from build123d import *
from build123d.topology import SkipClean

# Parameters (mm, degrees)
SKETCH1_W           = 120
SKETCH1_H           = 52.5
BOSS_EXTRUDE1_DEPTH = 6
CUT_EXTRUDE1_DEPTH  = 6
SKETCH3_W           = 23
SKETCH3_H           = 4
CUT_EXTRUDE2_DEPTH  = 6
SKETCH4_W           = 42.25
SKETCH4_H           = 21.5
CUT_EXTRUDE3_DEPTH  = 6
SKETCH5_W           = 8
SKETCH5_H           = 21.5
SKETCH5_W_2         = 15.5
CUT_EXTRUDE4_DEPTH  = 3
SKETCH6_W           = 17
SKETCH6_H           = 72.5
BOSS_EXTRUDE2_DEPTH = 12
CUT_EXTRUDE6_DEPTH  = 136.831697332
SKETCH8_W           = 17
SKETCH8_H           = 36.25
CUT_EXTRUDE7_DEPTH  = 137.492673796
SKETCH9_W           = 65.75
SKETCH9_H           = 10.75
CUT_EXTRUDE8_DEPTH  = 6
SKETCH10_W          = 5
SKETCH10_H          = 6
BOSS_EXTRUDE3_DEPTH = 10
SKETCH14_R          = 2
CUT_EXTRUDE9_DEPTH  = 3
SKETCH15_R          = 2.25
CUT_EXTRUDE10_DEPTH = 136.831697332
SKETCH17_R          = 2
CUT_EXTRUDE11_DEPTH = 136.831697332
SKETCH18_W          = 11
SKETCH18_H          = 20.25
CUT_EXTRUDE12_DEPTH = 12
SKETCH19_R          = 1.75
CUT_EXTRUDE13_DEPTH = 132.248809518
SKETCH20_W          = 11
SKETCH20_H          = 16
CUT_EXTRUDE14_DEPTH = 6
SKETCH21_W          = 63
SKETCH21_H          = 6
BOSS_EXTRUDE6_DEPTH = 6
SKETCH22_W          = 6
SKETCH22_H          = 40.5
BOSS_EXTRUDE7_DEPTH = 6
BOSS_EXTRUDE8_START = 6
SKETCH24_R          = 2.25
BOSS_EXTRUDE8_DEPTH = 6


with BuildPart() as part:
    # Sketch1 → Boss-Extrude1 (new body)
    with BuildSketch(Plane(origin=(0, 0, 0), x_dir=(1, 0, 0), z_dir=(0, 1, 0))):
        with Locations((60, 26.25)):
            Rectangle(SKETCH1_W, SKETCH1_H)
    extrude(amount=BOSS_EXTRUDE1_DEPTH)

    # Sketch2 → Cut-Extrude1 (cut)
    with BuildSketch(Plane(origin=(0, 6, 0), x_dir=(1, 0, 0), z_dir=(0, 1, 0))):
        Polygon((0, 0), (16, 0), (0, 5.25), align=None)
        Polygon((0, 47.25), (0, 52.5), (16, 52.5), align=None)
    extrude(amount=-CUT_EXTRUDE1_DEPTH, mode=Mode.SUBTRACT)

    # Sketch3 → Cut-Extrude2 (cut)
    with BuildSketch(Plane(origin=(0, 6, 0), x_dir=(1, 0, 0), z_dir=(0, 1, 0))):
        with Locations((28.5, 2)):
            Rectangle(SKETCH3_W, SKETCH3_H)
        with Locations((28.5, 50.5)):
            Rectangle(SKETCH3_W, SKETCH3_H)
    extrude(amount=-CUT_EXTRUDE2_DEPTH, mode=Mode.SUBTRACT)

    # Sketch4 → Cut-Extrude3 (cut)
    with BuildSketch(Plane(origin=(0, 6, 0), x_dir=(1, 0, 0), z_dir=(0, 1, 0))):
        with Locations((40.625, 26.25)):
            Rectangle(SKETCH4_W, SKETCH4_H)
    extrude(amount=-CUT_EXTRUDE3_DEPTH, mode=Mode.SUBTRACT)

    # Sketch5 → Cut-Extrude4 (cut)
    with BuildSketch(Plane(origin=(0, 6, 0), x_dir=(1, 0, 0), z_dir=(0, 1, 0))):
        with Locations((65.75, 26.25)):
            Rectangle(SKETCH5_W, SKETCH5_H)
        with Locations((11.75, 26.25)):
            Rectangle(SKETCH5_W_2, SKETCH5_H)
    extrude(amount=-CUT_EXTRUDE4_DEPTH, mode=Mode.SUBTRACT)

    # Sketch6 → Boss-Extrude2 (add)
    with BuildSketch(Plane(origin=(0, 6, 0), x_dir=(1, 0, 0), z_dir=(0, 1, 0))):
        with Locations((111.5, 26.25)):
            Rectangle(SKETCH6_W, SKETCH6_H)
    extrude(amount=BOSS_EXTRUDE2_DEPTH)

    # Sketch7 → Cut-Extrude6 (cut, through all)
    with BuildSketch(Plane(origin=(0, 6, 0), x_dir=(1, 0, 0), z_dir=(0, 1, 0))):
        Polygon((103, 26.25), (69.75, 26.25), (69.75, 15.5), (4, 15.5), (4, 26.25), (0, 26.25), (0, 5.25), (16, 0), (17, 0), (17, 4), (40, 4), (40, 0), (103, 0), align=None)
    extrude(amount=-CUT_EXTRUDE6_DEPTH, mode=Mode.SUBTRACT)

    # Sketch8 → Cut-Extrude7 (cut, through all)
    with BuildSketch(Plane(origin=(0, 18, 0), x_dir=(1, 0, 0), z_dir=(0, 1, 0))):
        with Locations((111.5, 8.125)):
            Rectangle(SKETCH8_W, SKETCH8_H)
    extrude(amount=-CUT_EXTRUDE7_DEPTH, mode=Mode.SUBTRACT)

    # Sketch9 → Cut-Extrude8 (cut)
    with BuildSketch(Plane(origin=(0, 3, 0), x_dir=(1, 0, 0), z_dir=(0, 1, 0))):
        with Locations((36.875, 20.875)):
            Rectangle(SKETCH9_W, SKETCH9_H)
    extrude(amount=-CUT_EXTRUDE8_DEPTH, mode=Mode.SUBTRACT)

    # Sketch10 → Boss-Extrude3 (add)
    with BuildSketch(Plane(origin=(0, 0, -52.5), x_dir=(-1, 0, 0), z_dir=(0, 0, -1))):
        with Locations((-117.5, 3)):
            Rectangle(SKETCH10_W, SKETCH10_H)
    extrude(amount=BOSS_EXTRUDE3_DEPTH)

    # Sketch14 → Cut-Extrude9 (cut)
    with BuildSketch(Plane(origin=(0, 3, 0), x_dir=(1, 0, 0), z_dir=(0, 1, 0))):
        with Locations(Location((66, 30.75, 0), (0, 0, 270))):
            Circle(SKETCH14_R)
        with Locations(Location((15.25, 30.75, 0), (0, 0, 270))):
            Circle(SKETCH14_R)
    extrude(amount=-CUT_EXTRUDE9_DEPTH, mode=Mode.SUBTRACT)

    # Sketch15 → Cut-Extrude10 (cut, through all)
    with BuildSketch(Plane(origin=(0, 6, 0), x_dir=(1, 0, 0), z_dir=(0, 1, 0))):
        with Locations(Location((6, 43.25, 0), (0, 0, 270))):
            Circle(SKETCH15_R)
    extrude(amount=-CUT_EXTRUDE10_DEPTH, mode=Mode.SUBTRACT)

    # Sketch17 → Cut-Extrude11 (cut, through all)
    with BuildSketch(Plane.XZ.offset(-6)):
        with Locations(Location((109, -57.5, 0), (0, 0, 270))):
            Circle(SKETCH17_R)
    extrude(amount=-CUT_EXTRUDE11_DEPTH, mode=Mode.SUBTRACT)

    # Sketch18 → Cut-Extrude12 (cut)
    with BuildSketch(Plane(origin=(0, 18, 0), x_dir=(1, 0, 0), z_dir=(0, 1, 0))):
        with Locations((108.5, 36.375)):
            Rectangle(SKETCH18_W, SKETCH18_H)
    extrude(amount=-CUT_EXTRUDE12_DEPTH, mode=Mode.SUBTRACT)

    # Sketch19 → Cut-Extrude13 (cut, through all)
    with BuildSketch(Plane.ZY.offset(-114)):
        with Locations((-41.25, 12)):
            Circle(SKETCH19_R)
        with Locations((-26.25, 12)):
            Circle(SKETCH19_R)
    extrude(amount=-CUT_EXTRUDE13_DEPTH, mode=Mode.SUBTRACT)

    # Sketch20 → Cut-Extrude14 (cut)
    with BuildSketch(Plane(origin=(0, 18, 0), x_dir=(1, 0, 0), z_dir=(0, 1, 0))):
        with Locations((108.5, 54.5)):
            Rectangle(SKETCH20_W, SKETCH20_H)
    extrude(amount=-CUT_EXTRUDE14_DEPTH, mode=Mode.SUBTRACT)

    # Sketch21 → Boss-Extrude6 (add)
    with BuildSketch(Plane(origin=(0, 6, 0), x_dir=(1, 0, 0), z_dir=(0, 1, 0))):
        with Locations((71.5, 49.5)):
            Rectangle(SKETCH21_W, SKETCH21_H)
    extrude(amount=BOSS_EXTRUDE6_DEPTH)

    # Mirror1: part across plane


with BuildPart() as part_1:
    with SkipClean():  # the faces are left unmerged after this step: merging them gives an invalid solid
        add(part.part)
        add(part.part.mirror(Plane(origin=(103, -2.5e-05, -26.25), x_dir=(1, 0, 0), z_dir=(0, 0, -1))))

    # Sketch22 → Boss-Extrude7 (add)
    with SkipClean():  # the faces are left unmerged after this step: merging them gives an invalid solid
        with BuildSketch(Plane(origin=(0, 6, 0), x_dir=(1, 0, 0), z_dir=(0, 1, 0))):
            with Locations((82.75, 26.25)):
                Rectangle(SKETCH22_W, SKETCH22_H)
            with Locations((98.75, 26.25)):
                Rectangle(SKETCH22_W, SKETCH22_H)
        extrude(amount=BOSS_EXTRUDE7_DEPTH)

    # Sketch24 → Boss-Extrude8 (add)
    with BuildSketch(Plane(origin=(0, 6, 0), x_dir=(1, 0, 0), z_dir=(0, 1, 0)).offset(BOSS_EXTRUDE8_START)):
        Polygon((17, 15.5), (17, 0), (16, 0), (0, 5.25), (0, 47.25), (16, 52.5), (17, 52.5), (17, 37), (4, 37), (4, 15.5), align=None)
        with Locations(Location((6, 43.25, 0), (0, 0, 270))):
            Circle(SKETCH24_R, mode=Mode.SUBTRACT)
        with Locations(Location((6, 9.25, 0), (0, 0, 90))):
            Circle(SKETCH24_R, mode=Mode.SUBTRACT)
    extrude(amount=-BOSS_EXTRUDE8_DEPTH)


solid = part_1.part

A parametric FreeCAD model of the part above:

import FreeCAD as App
import Part
import Sketcher
from FreeCAD import Vector

doc = App.newDocument("Part")
body = doc.addObject("PartDesign::Body", "Body")

sketch1 = body.newObject("Sketcher::SketchObject", "Sketch")
sketch1.AttachmentSupport = (doc.getObject("XZ_Plane"), [""])
sketch1.MapMode = "FlatFace"
sketch1.addGeometry([
    Part.LineSegment(Vector(0, -52, 0), Vector(0, 0, 0)),
    Part.LineSegment(Vector(0, 0, 0), Vector(120, 0, 0)),
    Part.LineSegment(Vector(120, 0, 0), Vector(120, -52, 0)),
    Part.LineSegment(Vector(120, -52, 0), Vector(0, -52, 0)),
], False)
sketch1.addConstraint([
    Sketcher.Constraint("Coincident", 0, 2, 1, 1),
    Sketcher.Constraint("Coincident", 1, 2, 2, 1),
    Sketcher.Constraint("Coincident", 2, 2, 3, 1),
    Sketcher.Constraint("Coincident", 3, 2, 0, 1),
    Sketcher.Constraint("Vertical", 0),
    Sketcher.Constraint("Horizontal", 1),
    Sketcher.Constraint("Vertical", 2),
    Sketcher.Constraint("Horizontal", 3),
    Sketcher.Constraint("Coincident", 0, 2, -1, 1),
    Sketcher.Constraint("DistanceX", 1, 1, 1, 2, 120.0),
    Sketcher.Constraint("DistanceY", 0, 1, 0, 2, 52.5),
])
pad1 = body.newObject("PartDesign::Pad", "Pad")
pad1.Profile = sketch1
pad1.Length = 6
pad1.Reversed = True

sketch2 = body.newObject("Sketcher::SketchObject", "Sketch001")
sketch2.AttachmentSupport = (doc.getObject("XZ_Plane"), [""])
sketch2.MapMode = "FlatFace"
sketch2.AttachmentOffset = App.Placement(Vector(0, 0, -6), App.Rotation())
sketch2.addGeometry([
    Part.LineSegment(Vector(0, 0, 0), Vector(16, 0, 0)),
    Part.LineSegment(Vector(16, 0, 0), Vector(0, -5, 0)),
    Part.LineSegment(Vector(0, -5, 0), Vector(0, 0, 0)),
    Part.LineSegment(Vector(0, -52, 0), Vector(0, -47, 0)),
    Part.LineSegment(Vector(0, -47, 0), Vector(16, -52, 0)),
    Part.LineSegment(Vector(16, -52, 0), Vector(0, -52, 0)),
], False)
sketch2.addConstraint([
    Sketcher.Constraint("Coincident", 0, 2, 1, 1),
    Sketcher.Constraint("Coincident", 1, 2, 2, 1),
    Sketcher.Constraint("Coincident", 2, 2, 0, 1),
    Sketcher.Constraint("Coincident", 3, 2, 4, 1),
    Sketcher.Constraint("Coincident", 4, 2, 5, 1),
    Sketcher.Constraint("Coincident", 5, 2, 3, 1),
    Sketcher.Constraint("Horizontal", 0),
    Sketcher.Constraint("Vertical", 2),
    Sketcher.Constraint("Vertical", 3),
    Sketcher.Constraint("Horizontal", 5),
    Sketcher.Constraint("Coincident", 2, 2, -1, 1),
    Sketcher.Constraint("PointOnObject", 3, 2, -2),
    Sketcher.Constraint("Vertical", 0, 2, 4, 2),
    Sketcher.Constraint("Equal", 2, 3),
    Sketcher.Constraint("DistanceX", 0, 1, 0, 2, 16.0),
    Sketcher.Constraint("DistanceY", 3, 2, 1, 2, 42.0),
    Sketcher.Constraint("DistanceY", 2, 1, 2, 2, 5.25),
])
pocket1 = body.newObject("PartDesign::Pocket", "Pocket")
pocket1.Profile = sketch2
pocket1.Length = 6
pocket1.Reversed = True

sketch3 = body.newObject("Sketcher::SketchObject", "Sketch002")
sketch3.AttachmentSupport = (doc.getObject("XZ_Plane"), [""])
sketch3.MapMode = "FlatFace"
sketch3.AttachmentOffset = App.Placement(Vector(0, 0, -6), App.Rotation())
sketch3.addGeometry([
    Part.LineSegment(Vector(17, -4, 0), Vector(17, 0, 0)),
    Part.LineSegment(Vector(17, 0, 0), Vector(40, 0, 0)),
    Part.LineSegment(Vector(40, 0, 0), Vector(40, -4, 0)),
    Part.LineSegment(Vector(40, -4, 0), Vector(17, -4, 0)),
    Part.LineSegment(Vector(17, -52.5, 0), Vector(17, -48.5, 0)),
    Part.LineSegment(Vector(17, -48.5, 0), Vector(40, -48.5, 0)),
    Part.LineSegment(Vector(40, -48.5, 0), Vector(40, -52.5, 0)),
    Part.LineSegment(Vector(40, -52.5, 0), Vector(17, -52.5, 0)),
], False)
sketch3.addConstraint([
    Sketcher.Constraint("Coincident", 0, 2, 1, 1),
    Sketcher.Constraint("Coincident", 1, 2, 2, 1),
    Sketcher.Constraint("Coincident", 2, 2, 3, 1),
    Sketcher.Constraint("Coincident", 3, 2, 0, 1),
    Sketcher.Constraint("Coincident", 4, 2, 5, 1),
    Sketcher.Constraint("Coincident", 5, 2, 6, 1),
    Sketcher.Constraint("Coincident", 6, 2, 7, 1),
    Sketcher.Constraint("Coincident", 7, 2, 4, 1),
    Sketcher.Constraint("Vertical", 0),
    Sketcher.Constraint("Horizontal", 1),
    Sketcher.Constraint("Vertical", 2),
    Sketcher.Constraint("Horizontal", 3),
    Sketcher.Constraint("Vertical", 4),
    Sketcher.Constraint("Horizontal", 5),
    Sketcher.Constraint("Vertical", 6),
    Sketcher.Constraint("Horizontal", 7),
    Sketcher.Constraint("PointOnObject", 0, 2, -1),
    Sketcher.Constraint("Vertical", 3, 2, 4, 2),
    Sketcher.Constraint("Vertical", 2, 2, 5, 2),
    Sketcher.Constraint("Equal", 2, 4),
    Sketcher.Constraint("DistanceX", 1, 1, 1, 2, 23.0),
    Sketcher.Constraint("DistanceY", 0, 1, 0, 2, 4.0),
    Sketcher.Constraint("DistanceX", -1, 1, 0, 2, 17.0),
    Sketcher.Constraint("DistanceY", 4, 2, -1, 1, 48.5),
])
pocket2 = body.newObject("PartDesign::Pocket", "Pocket001")
pocket2.Profile = sketch3
pocket2.Length = 6
pocket2.Reversed = True

sketch4 = body.newObject("Sketcher::SketchObject", "Sketch003")
sketch4.AttachmentSupport = (doc.getObject("XZ_Plane"), [""])
sketch4.MapMode = "FlatFace"
sketch4.AttachmentOffset = App.Placement(Vector(0, 0, -6), App.Rotation())
sketch4.addGeometry([
    Part.LineSegment(Vector(20, -37, 0), Vector(20, -16, 0)),
    Part.LineSegment(Vector(20, -16, 0), Vector(62, -16, 0)),
    Part.LineSegment(Vector(62, -16, 0), Vector(62, -37, 0)),
    Part.LineSegment(Vector(62, -37, 0), Vector(20, -37, 0)),
], False)
sketch4.addConstraint([
    Sketcher.Constraint("Coincident", 0, 2, 1, 1),
    Sketcher.Constraint("Coincident", 1, 2, 2, 1),
    Sketcher.Constraint("Coincident", 2, 2, 3, 1),
    Sketcher.Constraint("Coincident", 3, 2, 0, 1),
    Sketcher.Constraint("Vertical", 0),
    Sketcher.Constraint("Horizontal", 1),
    Sketcher.Constraint("Vertical", 2),
    Sketcher.Constraint("Horizontal", 3),
    Sketcher.Constraint("DistanceY", 0, 1, 0, 2, 21.5),
    Sketcher.Constraint("DistanceY", 2, 2, -1, 1, 37.0),
    Sketcher.Constraint("DistanceX", 1, 1, 1, 2, 42.25),
    Sketcher.Constraint("DistanceX", -1, 1, 0, 2, 19.5),
])
pocket3 = body.newObject("PartDesign::Pocket", "Pocket002")
pocket3.Profile = sketch4
pocket3.Length = 6
pocket3.Reversed = True

sketch5 = body.newObject("Sketcher::SketchObject", "Sketch004")
sketch5.AttachmentSupport = (doc.getObject("XZ_Plane"), [""])
sketch5.MapMode = "FlatFace"
sketch5.AttachmentOffset = App.Placement(Vector(0, 0, -6), App.Rotation())
sketch5.addGeometry([
    Part.LineSegment(Vector(62, -37, 0), Vector(62, -16, 0)),
    Part.LineSegment(Vector(62, -16, 0), Vector(70, -16, 0)),
    Part.LineSegment(Vector(70, -16, 0), Vector(70, -37, 0)),
    Part.LineSegment(Vector(70, -37, 0), Vector(62, -37, 0)),
    Part.LineSegment(Vector(4, -37, 0), Vector(4, -16, 0)),
    Part.LineSegment(Vector(4, -16, 0), Vector(20, -16, 0)),
    Part.LineSegment(Vector(20, -16, 0), Vector(20, -37, 0)),
    Part.LineSegment(Vector(20, -37, 0), Vector(4, -37, 0)),
], False)
sketch5.addConstraint([
    Sketcher.Constraint("Coincident", 0, 2, 1, 1),
    Sketcher.Constraint("Coincident", 1, 2, 2, 1),
    Sketcher.Constraint("Coincident", 2, 2, 3, 1),
    Sketcher.Constraint("Coincident", 3, 2, 0, 1),
    Sketcher.Constraint("Coincident", 4, 2, 5, 1),
    Sketcher.Constraint("Coincident", 5, 2, 6, 1),
    Sketcher.Constraint("Coincident", 6, 2, 7, 1),
    Sketcher.Constraint("Coincident", 7, 2, 4, 1),
    Sketcher.Constraint("Vertical", 0),
    Sketcher.Constraint("Horizontal", 1),
    Sketcher.Constraint("Vertical", 2),
    Sketcher.Constraint("Horizontal", 3),
    Sketcher.Constraint("Vertical", 4),
    Sketcher.Constraint("Horizontal", 5),
    Sketcher.Constraint("Vertical", 6),
    Sketcher.Constraint("Horizontal", 7),
    Sketcher.Constraint("Horizontal", 1, 2, 4, 2),
    Sketcher.Constraint("Horizontal", 3, 2, 6, 2),
    Sketcher.Constraint("DistanceX", 1, 1, 1, 2, 8.0),
    Sketcher.Constraint("DistanceX", 5, 1, 5, 2, 15.5),
    Sketcher.Constraint("DistanceY", 0, 1, 0, 2, 21.5),
    Sketcher.Constraint("DistanceY", 2, 2, -1, 1, 37.0),
    Sketcher.Constraint("DistanceX", -1, 1, 4, 2, 4.0),
    Sketcher.Constraint("DistanceX", -1, 1, 0, 2, 61.75),
])
pocket4 = body.newObject("PartDesign::Pocket", "Pocket003")
pocket4.Profile = sketch5
pocket4.Length = 3
pocket4.Reversed = True

sketch6 = body.newObject("Sketcher::SketchObject", "Sketch005")
sketch6.AttachmentSupport = (doc.getObject("XZ_Plane"), [""])
sketch6.MapMode = "FlatFace"
sketch6.AttachmentOffset = App.Placement(Vector(0, 0, -6), App.Rotation())
sketch6.addGeometry([
    Part.LineSegment(Vector(103, -62, 0), Vector(103, 10, 0)),
    Part.LineSegment(Vector(103, 10, 0), Vector(120, 10, 0)),
    Part.LineSegment(Vector(120, 10, 0), Vector(120, -62, 0)),
    Part.LineSegment(Vector(120, -62, 0), Vector(103, -62, 0)),
], False)
sketch6.addConstraint([
    Sketcher.Constraint("Coincident", 0, 2, 1, 1),
    Sketcher.Constraint("Coincident", 1, 2, 2, 1),
    Sketcher.Constraint("Coincident", 2, 2, 3, 1),
    Sketcher.Constraint("Coincident", 3, 2, 0, 1),
    Sketcher.Constraint("Vertical", 0),
    Sketcher.Constraint("Horizontal", 1),
    Sketcher.Constraint("Vertical", 2),
    Sketcher.Constraint("Horizontal", 3),
    Sketcher.Constraint("DistanceX", 1, 1, 1, 2, 17.0),
    Sketcher.Constraint("DistanceY", 0, 1, 0, 2, 72.5),
    Sketcher.Constraint("DistanceX", -1, 1, 0, 2, 103.0),
    Sketcher.Constraint("DistanceY", -1, 1, 0, 2, 10.0),
])
pad2 = body.newObject("PartDesign::Pad", "Pad001")
pad2.Profile = sketch6
pad2.Length = 12
pad2.Reversed = True

sketch7 = body.newObject("Sketcher::SketchObject", "Sketch006")
sketch7.AttachmentSupport = (doc.getObject("XZ_Plane"), [""])
sketch7.MapMode = "FlatFace"
sketch7.AttachmentOffset = App.Placement(Vector(0, 0, -6), App.Rotation())
sketch7.addGeometry([
    Part.LineSegment(Vector(103, -26.2, 0), Vector(69.8, -26.2, 0)),
    Part.LineSegment(Vector(69.8, -26.2, 0), Vector(69.8, -15.5, 0)),
    Part.LineSegment(Vector(69.8, -15.5, 0), Vector(4, -15.5, 0)),
    Part.LineSegment(Vector(4, -15.5, 0), Vector(4, -26.2, 0)),
    Part.LineSegment(Vector(4, -26.2, 0), Vector(0, -26.2, 0)),
    Part.LineSegment(Vector(0, -26.2, 0), Vector(0, -5.2, 0)),
    Part.LineSegment(Vector(0, -5.2, 0), Vector(16, 0, 0)),
    Part.LineSegment(Vector(16, 0, 0), Vector(17, 0, 0)),
    Part.LineSegment(Vector(17, 0, 0), Vector(17, -4, 0)),
    Part.LineSegment(Vector(17, -4, 0), Vector(40, -4, 0)),
    Part.LineSegment(Vector(40, -4, 0), Vector(40, 0, 0)),
    Part.LineSegment(Vector(40, 0, 0), Vector(103, 0, 0)),
    Part.LineSegment(Vector(103, 0, 0), Vector(103, -26.2, 0)),
], False)
sketch7.addConstraint([
    Sketcher.Constraint("Coincident", 0, 2, 1, 1),
    Sketcher.Constraint("Coincident", 1, 2, 2, 1),
    Sketcher.Constraint("Coincident", 2, 2, 3, 1),
    Sketcher.Constraint("Coincident", 3, 2, 4, 1),
    Sketcher.Constraint("Coincident", 4, 2, 5, 1),
    Sketcher.Constraint("Coincident", 5, 2, 6, 1),
    Sketcher.Constraint("Coincident", 6, 2, 7, 1),
    Sketcher.Constraint("Coincident", 7, 2, 8, 1),
    Sketcher.Constraint("Coincident", 8, 2, 9, 1),
    Sketcher.Constraint("Coincident", 9, 2, 10, 1),
    Sketcher.Constraint("Coincident", 10, 2, 11, 1),
    Sketcher.Constraint("Coincident", 11, 2, 12, 1),
    Sketcher.Constraint("Coincident", 12, 2, 0, 1),
    Sketcher.Constraint("Horizontal", 0),
    Sketcher.Constraint("Vertical", 1),
    Sketcher.Constraint("Horizontal", 2),
    Sketcher.Constraint("Vertical", 3),
    Sketcher.Constraint("Horizontal", 4),
    Sketcher.Constraint("Vertical", 5),
    Sketcher.Constraint("Horizontal", 7),
    Sketcher.Constraint("Vertical", 8),
    Sketcher.Constraint("Horizontal", 9),
    Sketcher.Constraint("Vertical", 10),
    Sketcher.Constraint("Horizontal", 11),
    Sketcher.Constraint("Vertical", 12),
    Sketcher.Constraint("PointOnObject", 4, 2, -2),
    Sketcher.Constraint("PointOnObject", 6, 2, -1),
    Sketcher.Constraint("PointOnObject", 10, 2, -1),
    Sketcher.Constraint("Horizontal", 0, 2, 3, 2),
    Sketcher.Constraint("Equal", 4, 8),
    Sketcher.Constraint("DistanceX", 4, 2, 4, 1, 4.0),
    Sketcher.Constraint("DistanceX", 7, 1, 7, 2, 1.0),
    Sketcher.Constraint("DistanceX", 9, 1, 9, 2, 23.0),
    Sketcher.Constraint("DistanceX", 11, 1, 11, 2, 63.0),
    Sketcher.Constraint("DistanceY", 5, 1, 5, 2, 21.0),
    Sketcher.Constraint("DistanceX", -1, 1, 6, 2, 16.0),
    Sketcher.Constraint("DistanceX", 0, 2, 0, 1, 33.25),
    Sketcher.Constraint("DistanceY", 1, 1, 1, 2, 10.75),
    Sketcher.Constraint("DistanceY", 12, 2, 12, 1, 26.25),
])
pocket5 = body.newObject("PartDesign::Pocket", "Pocket004")
pocket5.Profile = sketch7
pocket5.Type = "ThroughAll"
pocket5.Reversed = True

sketch8 = body.newObject("Sketcher::SketchObject", "Sketch007")
sketch8.AttachmentSupport = (doc.getObject("XZ_Plane"), [""])
sketch8.MapMode = "FlatFace"
sketch8.AttachmentOffset = App.Placement(Vector(0, 0, -18), App.Rotation())
sketch8.addGeometry([
    Part.LineSegment(Vector(103, -26, 0), Vector(103, 10, 0)),
    Part.LineSegment(Vector(103, 10, 0), Vector(120, 10, 0)),
    Part.LineSegment(Vector(120, 10, 0), Vector(120, -26, 0)),
    Part.LineSegment(Vector(120, -26, 0), Vector(103, -26, 0)),
], False)
sketch8.addConstraint([
    Sketcher.Constraint("Coincident", 0, 2, 1, 1),
    Sketcher.Constraint("Coincident", 1, 2, 2, 1),
    Sketcher.Constraint("Coincident", 2, 2, 3, 1),
    Sketcher.Constraint("Coincident", 3, 2, 0, 1),
    Sketcher.Constraint("Vertical", 0),
    Sketcher.Constraint("Horizontal", 1),
    Sketcher.Constraint("Vertical", 2),
    Sketcher.Constraint("Horizontal", 3),
    Sketcher.Constraint("DistanceX", 1, 1, 1, 2, 17.0),
    Sketcher.Constraint("DistanceX", -1, 1, 0, 2, 103.0),
    Sketcher.Constraint("DistanceY", -1, 1, 0, 2, 10.0),
    Sketcher.Constraint("DistanceY", 0, 1, 0, 2, 36.25),
])
pocket6 = body.newObject("PartDesign::Pocket", "Pocket005")
pocket6.Profile = sketch8
pocket6.Type = "ThroughAll"
pocket6.Reversed = True

sketch9 = body.newObject("Sketcher::SketchObject", "Sketch008")
sketch9.AttachmentSupport = (doc.getObject("XZ_Plane"), [""])
sketch9.MapMode = "FlatFace"
sketch9.AttachmentOffset = App.Placement(Vector(0, 0, -3), App.Rotation())
sketch9.addGeometry([
    Part.LineSegment(Vector(4, -26, 0), Vector(4, -16, 0)),
    Part.LineSegment(Vector(4, -16, 0), Vector(70, -16, 0)),
    Part.LineSegment(Vector(70, -16, 0), Vector(70, -26, 0)),
    Part.LineSegment(Vector(70, -26, 0), Vector(4, -26, 0)),
], False)
sketch9.addConstraint([
    Sketcher.Constraint("Coincident", 0, 2, 1, 1),
    Sketcher.Constraint("Coincident", 1, 2, 2, 1),
    Sketcher.Constraint("Coincident", 2, 2, 3, 1),
    Sketcher.Constraint("Coincident", 3, 2, 0, 1),
    Sketcher.Constraint("Vertical", 0),
    Sketcher.Constraint("Horizontal", 1),
    Sketcher.Constraint("Vertical", 2),
    Sketcher.Constraint("Horizontal", 3),
    Sketcher.Constraint("DistanceX", -1, 1, 0, 2, 4.0),
    Sketcher.Constraint("DistanceX", 1, 1, 1, 2, 65.75),
    Sketcher.Constraint("DistanceY", 0, 1, 0, 2, 10.75),
    Sketcher.Constraint("DistanceY", 0, 2, -1, 1, 15.5),
])
pocket7 = body.newObject("PartDesign::Pocket", "Pocket006")
pocket7.Profile = sketch9
pocket7.Length = 6
pocket7.Reversed = True

sketch10 = body.newObject("Sketcher::SketchObject", "Sketch009")
sketch10.AttachmentSupport = (doc.getObject("XY_Plane"), [""])
sketch10.MapMode = "FlatFace"
sketch10.AttachmentOffset = App.Placement(Vector(0, 0, -52.5), App.Rotation())
sketch10.addGeometry([
    Part.LineSegment(Vector(120, 6, 0), Vector(120, 0, 0)),
    Part.LineSegment(Vector(120, 0, 0), Vector(115, 0, 0)),
    Part.LineSegment(Vector(115, 0, 0), Vector(115, 6, 0)),
    Part.LineSegment(Vector(115, 6, 0), Vector(120, 6, 0)),
], False)
sketch10.addConstraint([
    Sketcher.Constraint("Coincident", 0, 2, 1, 1),
    Sketcher.Constraint("Coincident", 1, 2, 2, 1),
    Sketcher.Constraint("Coincident", 2, 2, 3, 1),
    Sketcher.Constraint("Coincident", 3, 2, 0, 1),
    Sketcher.Constraint("Vertical", 0),
    Sketcher.Constraint("Horizontal", 1),
    Sketcher.Constraint("Vertical", 2),
    Sketcher.Constraint("Horizontal", 3),
    Sketcher.Constraint("PointOnObject", 0, 2, -1),
    Sketcher.Constraint("DistanceX", 1, 2, 1, 1, 5.0),
    Sketcher.Constraint("DistanceY", 0, 2, 0, 1, 6.0),
    Sketcher.Constraint("DistanceX", -1, 1, 0, 2, 120.0),
])
pad3 = body.newObject("PartDesign::Pad", "Pad002")
pad3.Profile = sketch10
pad3.Length = 10
pad3.Reversed = True

sketch11 = body.newObject("Sketcher::SketchObject", "Sketch010")
sketch11.AttachmentSupport = (doc.getObject("XZ_Plane"), [""])
sketch11.MapMode = "FlatFace"
sketch11.AttachmentOffset = App.Placement(Vector(0, 0, -3), App.Rotation())
sketch11.addGeometry([
    Part.Circle(Vector(66, -30.8, 0), Vector(0, 0, 1), 2),
    Part.Circle(Vector(15.2, -30.8, 0), Vector(0, 0, 1), 2),
], False)
sketch11.addConstraint([
    Sketcher.Constraint("Equal", 0, 1),
    Sketcher.Constraint("Horizontal", 0, 3, 1, 3),
    Sketcher.Constraint("Diameter", 0, 4.0),
    Sketcher.Constraint("DistanceX", -1, 1, 0, 3, 66.0),
    Sketcher.Constraint("DistanceY", 0, 3, -1, 1, 30.75),
    Sketcher.Constraint("DistanceX", -1, 1, 1, 3, 15.25),
])
pocket8 = body.newObject("PartDesign::Pocket", "Pocket007")
pocket8.Profile = sketch11
pocket8.Length = 3
pocket8.Reversed = True

sketch12 = body.newObject("Sketcher::SketchObject", "Sketch011")
sketch12.AttachmentSupport = (doc.getObject("XZ_Plane"), [""])
sketch12.MapMode = "FlatFace"
sketch12.AttachmentOffset = App.Placement(Vector(0, 0, -6), App.Rotation())
sketch12.addGeometry(Part.Circle(Vector(6, -43.2, 0), Vector(0, 0, 1), 2.2), False)
sketch12.addConstraint([
    Sketcher.Constraint("Diameter", 0, 4.5),
    Sketcher.Constraint("DistanceX", -1, 1, 0, 3, 6.0),
    Sketcher.Constraint("DistanceY", 0, 3, -1, 1, 43.25),
])
pocket9 = body.newObject("PartDesign::Pocket", "Pocket008")
pocket9.Profile = sketch12
pocket9.Type = "ThroughAll"
pocket9.Reversed = True

sketch13 = body.newObject("Sketcher::SketchObject", "Sketch012")
sketch13.AttachmentSupport = (doc.getObject("XZ_Plane"), [""])
sketch13.MapMode = "FlatFace"
sketch13.AttachmentOffset = App.Placement(Vector(0, 0, -6), App.Rotation())
sketch13.addGeometry(Part.Circle(Vector(109, -57.5, 0), Vector(0, 0, 1), 2), False)
sketch13.addConstraint([
    Sketcher.Constraint("Diameter", 0, 4.0),
    Sketcher.Constraint("DistanceX", -1, 1, 0, 3, 109.0),
    Sketcher.Constraint("DistanceY", 0, 3, -1, 1, 57.5),
])
pocket10 = body.newObject("PartDesign::Pocket", "Pocket009")
pocket10.Profile = sketch13
pocket10.Type = "ThroughAll"

sketch14 = body.newObject("Sketcher::SketchObject", "Sketch013")
sketch14.AttachmentSupport = (doc.getObject("XZ_Plane"), [""])
sketch14.MapMode = "FlatFace"
sketch14.AttachmentOffset = App.Placement(Vector(0, 0, -18), App.Rotation())
sketch14.addGeometry([
    Part.LineSegment(Vector(103, -46, 0), Vector(103, -26, 0)),
    Part.LineSegment(Vector(103, -26, 0), Vector(114, -26, 0)),
    Part.LineSegment(Vector(114, -26, 0), Vector(114, -46, 0)),
    Part.LineSegment(Vector(114, -46, 0), Vector(103, -46, 0)),
], False)
sketch14.addConstraint([
    Sketcher.Constraint("Coincident", 0, 2, 1, 1),
    Sketcher.Constraint("Coincident", 1, 2, 2, 1),
    Sketcher.Constraint("Coincident", 2, 2, 3, 1),
    Sketcher.Constraint("Coincident", 3, 2, 0, 1),
    Sketcher.Constraint("Vertical", 0),
    Sketcher.Constraint("Horizontal", 1),
    Sketcher.Constraint("Vertical", 2),
    Sketcher.Constraint("Horizontal", 3),
    Sketcher.Constraint("DistanceX", 1, 1, 1, 2, 11.0),
    Sketcher.Constraint("DistanceX", -1, 1, 0, 2, 103.0),
    Sketcher.Constraint("DistanceY", 0, 1, 0, 2, 20.25),
    Sketcher.Constraint("DistanceY", 2, 2, -1, 1, 46.5),
])
pocket11 = body.newObject("PartDesign::Pocket", "Pocket010")
pocket11.Profile = sketch14
pocket11.Length = 12
pocket11.Reversed = True

sketch15 = body.newObject("Sketcher::SketchObject", "Sketch014")
sketch15.AttachmentSupport = (doc.getObject("YZ_Plane"), [""])
sketch15.MapMode = "FlatFace"
sketch15.AttachmentOffset = App.Placement(Vector(0, 0, 114), App.Rotation())
sketch15.addGeometry([
    Part.Circle(Vector(12, -41.2, 0), Vector(0, 0, 1), 1.8),
    Part.Circle(Vector(12, -26.2, 0), Vector(0, 0, 1), 1.8),
], False)
sketch15.addConstraint([
    Sketcher.Constraint("Equal", 0, 1),
    Sketcher.Constraint("Vertical", 0, 3, 1, 3),
    Sketcher.Constraint("Diameter", 0, 3.5),
    Sketcher.Constraint("DistanceX", -1, 1, 0, 3, 12.0),
    Sketcher.Constraint("DistanceY", 0, 3, 1, 3, 15.0),
    Sketcher.Constraint("DistanceY", 0, 3, -1, 1, 41.25),
])
pocket12 = body.newObject("PartDesign::Pocket", "Pocket011")
pocket12.Profile = sketch15
pocket12.Type = "ThroughAll"
pocket12.Reversed = True

sketch16 = body.newObject("Sketcher::SketchObject", "Sketch015")
sketch16.AttachmentSupport = (doc.getObject("XZ_Plane"), [""])
sketch16.MapMode = "FlatFace"
sketch16.AttachmentOffset = App.Placement(Vector(0, 0, -18), App.Rotation())
sketch16.addGeometry([
    Part.LineSegment(Vector(103, -62, 0), Vector(103, -46, 0)),
    Part.LineSegment(Vector(103, -46, 0), Vector(114, -46, 0)),
    Part.LineSegment(Vector(114, -46, 0), Vector(114, -62, 0)),
    Part.LineSegment(Vector(114, -62, 0), Vector(103, -62, 0)),
], False)
sketch16.addConstraint([
    Sketcher.Constraint("Coincident", 0, 2, 1, 1),
    Sketcher.Constraint("Coincident", 1, 2, 2, 1),
    Sketcher.Constraint("Coincident", 2, 2, 3, 1),
    Sketcher.Constraint("Coincident", 3, 2, 0, 1),
    Sketcher.Constraint("Vertical", 0),
    Sketcher.Constraint("Horizontal", 1),
    Sketcher.Constraint("Vertical", 2),
    Sketcher.Constraint("Horizontal", 3),
    Sketcher.Constraint("DistanceX", 1, 1, 1, 2, 11.0),
    Sketcher.Constraint("DistanceY", 0, 1, 0, 2, 16.0),
    Sketcher.Constraint("DistanceX", -1, 1, 0, 2, 103.0),
    Sketcher.Constraint("DistanceY", 0, 2, -1, 1, 46.5),
])
pocket13 = body.newObject("PartDesign::Pocket", "Pocket012")
pocket13.Profile = sketch16
pocket13.Length = 6
pocket13.Reversed = True

sketch17 = body.newObject("Sketcher::SketchObject", "Sketch016")
sketch17.AttachmentSupport = (doc.getObject("XZ_Plane"), [""])
sketch17.MapMode = "FlatFace"
sketch17.AttachmentOffset = App.Placement(Vector(0, 0, -6), App.Rotation())
sketch17.addGeometry([
    Part.LineSegment(Vector(40, -52, 0), Vector(40, -46, 0)),
    Part.LineSegment(Vector(40, -46, 0), Vector(103, -46, 0)),
    Part.LineSegment(Vector(103, -46, 0), Vector(103, -52, 0)),
    Part.LineSegment(Vector(103, -52, 0), Vector(40, -52, 0)),
], False)
sketch17.addConstraint([
    Sketcher.Constraint("Coincident", 0, 2, 1, 1),
    Sketcher.Constraint("Coincident", 1, 2, 2, 1),
    Sketcher.Constraint("Coincident", 2, 2, 3, 1),
    Sketcher.Constraint("Coincident", 3, 2, 0, 1),
    Sketcher.Constraint("Vertical", 0),
    Sketcher.Constraint("Horizontal", 1),
    Sketcher.Constraint("Vertical", 2),
    Sketcher.Constraint("Horizontal", 3),
    Sketcher.Constraint("DistanceX", 1, 1, 1, 2, 63.0),
    Sketcher.Constraint("DistanceY", 0, 1, 0, 2, 6.0),
    Sketcher.Constraint("DistanceX", -1, 1, 0, 2, 40.0),
    Sketcher.Constraint("DistanceY", 0, 2, -1, 1, 46.5),
])
pad4 = body.newObject("PartDesign::Pad", "Pad003")
pad4.Profile = sketch17
pad4.Length = 6
pad4.Reversed = True
body2 = doc.addObject("PartDesign::Body", "Body001")
doc.recompute()

body2.BaseFeature = body
doc.recompute()

mirroring = doc.addObject("Part::Mirroring", "Mirroring")
mirroring.Source = body
mirroring.Base = Vector(103, -0.000025, -26.25)
mirroring.Normal = Vector(0, 0, -1)
body3 = doc.addObject("PartDesign::Body", "Body002")
body3.BaseFeature = mirroring
boolean = body2.newObject("PartDesign::Boolean", "Boolean")
boolean.Type = "Fuse"
boolean.addObjects([body3])
doc.recompute()

sketch18 = body2.newObject("Sketcher::SketchObject", "Sketch017")
sketch18.AttachmentSupport = (doc.getObject("XZ_Plane001"), [""])
sketch18.MapMode = "FlatFace"
sketch18.AttachmentOffset = App.Placement(Vector(0, 0, -6), App.Rotation())
sketch18.addGeometry([
    Part.LineSegment(Vector(80, -46, 0), Vector(80, -6, 0)),
    Part.LineSegment(Vector(80, -6, 0), Vector(86, -6, 0)),
    Part.LineSegment(Vector(86, -6, 0), Vector(86, -46, 0)),
    Part.LineSegment(Vector(86, -46, 0), Vector(80, -46, 0)),
    Part.LineSegment(Vector(96, -46, 0), Vector(96, -6, 0)),
    Part.LineSegment(Vector(96, -6, 0), Vector(102, -6, 0)),
    Part.LineSegment(Vector(102, -6, 0), Vector(102, -46, 0)),
    Part.LineSegment(Vector(102, -46, 0), Vector(96, -46, 0)),
], False)
sketch18.addConstraint([
    Sketcher.Constraint("Coincident", 0, 2, 1, 1),
    Sketcher.Constraint("Coincident", 1, 2, 2, 1),
    Sketcher.Constraint("Coincident", 2, 2, 3, 1),
    Sketcher.Constraint("Coincident", 3, 2, 0, 1),
    Sketcher.Constraint("Coincident", 4, 2, 5, 1),
    Sketcher.Constraint("Coincident", 5, 2, 6, 1),
    Sketcher.Constraint("Coincident", 6, 2, 7, 1),
    Sketcher.Constraint("Coincident", 7, 2, 4, 1),
    Sketcher.Constraint("Vertical", 0),
    Sketcher.Constraint("Horizontal", 1),
    Sketcher.Constraint("Vertical", 2),
    Sketcher.Constraint("Horizontal", 3),
    Sketcher.Constraint("Vertical", 4),
    Sketcher.Constraint("Horizontal", 5),
    Sketcher.Constraint("Vertical", 6),
    Sketcher.Constraint("Horizontal", 7),
    Sketcher.Constraint("Horizontal", 1, 2, 4, 2),
    Sketcher.Constraint("Horizontal", 3, 2, 6, 2),
    Sketcher.Constraint("Equal", 3, 5),
    Sketcher.Constraint("DistanceX", 1, 1, 1, 2, 6.0),
    Sketcher.Constraint("DistanceY", 0, 1, 0, 2, 40.5),
    Sketcher.Constraint("DistanceY", 0, 2, -1, 1, 6.0),
    Sketcher.Constraint("DistanceX", 1, 2, 4, 2, 10.0),
    Sketcher.Constraint("DistanceX", -1, 1, 0, 2, 79.75),
])
pad5 = body2.newObject("PartDesign::Pad", "Pad004")
pad5.Profile = sketch18
pad5.Length = 6
pad5.Reversed = True

sketch19 = body2.newObject("Sketcher::SketchObject", "Sketch018")
sketch19.AttachmentSupport = (doc.getObject("XZ_Plane001"), [""])
sketch19.MapMode = "FlatFace"
sketch19.AttachmentOffset = App.Placement(Vector(0, 0, -12), App.Rotation())
sketch19.addGeometry([
    Part.LineSegment(Vector(17, 0, 0), Vector(17, -15.5, 0)),
    Part.LineSegment(Vector(17, -15.5, 0), Vector(4, -15.5, 0)),
    Part.LineSegment(Vector(4, -15.5, 0), Vector(4, -37, 0)),
    Part.LineSegment(Vector(4, -37, 0), Vector(17, -37, 0)),
    Part.LineSegment(Vector(17, -37, 0), Vector(17, -52.5, 0)),
    Part.LineSegment(Vector(17, -52.5, 0), Vector(16, -52.5, 0)),
    Part.LineSegment(Vector(16, -52.5, 0), Vector(0, -47.2, 0)),
    Part.LineSegment(Vector(0, -47.2, 0), Vector(0, -5.2, 0)),
    Part.LineSegment(Vector(0, -5.2, 0), Vector(16, 0, 0)),
    Part.LineSegment(Vector(16, 0, 0), Vector(17, 0, 0)),
    Part.Circle(Vector(6, -9.2, 0), Vector(0, 0, 1), 2.2),
    Part.Circle(Vector(6, -43.2, 0), Vector(0, 0, 1), 2.2),
], False)
sketch19.addConstraint([
    Sketcher.Constraint("Coincident", 0, 2, 1, 1),
    Sketcher.Constraint("Coincident", 1, 2, 2, 1),
    Sketcher.Constraint("Coincident", 2, 2, 3, 1),
    Sketcher.Constraint("Coincident", 3, 2, 4, 1),
    Sketcher.Constraint("Coincident", 4, 2, 5, 1),
    Sketcher.Constraint("Coincident", 5, 2, 6, 1),
    Sketcher.Constraint("Coincident", 6, 2, 7, 1),
    Sketcher.Constraint("Coincident", 7, 2, 8, 1),
    Sketcher.Constraint("Coincident", 8, 2, 9, 1),
    Sketcher.Constraint("Coincident", 9, 2, 0, 1),
    Sketcher.Constraint("Vertical", 0),
    Sketcher.Constraint("Horizontal", 1),
    Sketcher.Constraint("Vertical", 2),
    Sketcher.Constraint("Horizontal", 3),
    Sketcher.Constraint("Vertical", 4),
    Sketcher.Constraint("Horizontal", 5),
    Sketcher.Constraint("Vertical", 7),
    Sketcher.Constraint("Horizontal", 9),
    Sketcher.Constraint("Equal", 10, 11),
    Sketcher.Constraint("PointOnObject", 6, 2, -2),
    Sketcher.Constraint("PointOnObject", 8, 2, -1),
    Sketcher.Constraint("Vertical", 10, 3, 11, 3),
    Sketcher.Constraint("Vertical", 0, 2, 3, 2),
    Sketcher.Constraint("Vertical", 5, 2, 8, 2),
    Sketcher.Constraint("Equal", 0, 4),
    Sketcher.Constraint("Equal", 6, 8),
    Sketcher.Constraint("Diameter", 10, 4.5),
    Sketcher.Constraint("DistanceX", 1, 2, 1, 1, 13.0),
    Sketcher.Constraint("DistanceX", 5, 2, 5, 1, 1.0),
    Sketcher.Constraint("DistanceY", 7, 1, 7, 2, 42.0),
    Sketcher.Constraint("DistanceY", 0, 2, 0, 1, 15.5),
    Sketcher.Constraint("DistanceY", 2, 2, 2, 1, 21.5),
    Sketcher.Constraint("DistanceX", -1, 1, 10, 3, 6.0),
    Sketcher.Constraint("DistanceX", -1, 1, 0, 2, 17.0),
    Sketcher.Constraint("DistanceY", 11, 3, 10, 3, 34.0),
    Sketcher.Constraint("DistanceY", 6, 2, 11, 3, 4.0),
])
pad6 = body2.newObject("PartDesign::Pad", "Pad005")
pad6.Profile = sketch19
pad6.Length = 6
mirroring.Visibility = False

doc.recompute()
